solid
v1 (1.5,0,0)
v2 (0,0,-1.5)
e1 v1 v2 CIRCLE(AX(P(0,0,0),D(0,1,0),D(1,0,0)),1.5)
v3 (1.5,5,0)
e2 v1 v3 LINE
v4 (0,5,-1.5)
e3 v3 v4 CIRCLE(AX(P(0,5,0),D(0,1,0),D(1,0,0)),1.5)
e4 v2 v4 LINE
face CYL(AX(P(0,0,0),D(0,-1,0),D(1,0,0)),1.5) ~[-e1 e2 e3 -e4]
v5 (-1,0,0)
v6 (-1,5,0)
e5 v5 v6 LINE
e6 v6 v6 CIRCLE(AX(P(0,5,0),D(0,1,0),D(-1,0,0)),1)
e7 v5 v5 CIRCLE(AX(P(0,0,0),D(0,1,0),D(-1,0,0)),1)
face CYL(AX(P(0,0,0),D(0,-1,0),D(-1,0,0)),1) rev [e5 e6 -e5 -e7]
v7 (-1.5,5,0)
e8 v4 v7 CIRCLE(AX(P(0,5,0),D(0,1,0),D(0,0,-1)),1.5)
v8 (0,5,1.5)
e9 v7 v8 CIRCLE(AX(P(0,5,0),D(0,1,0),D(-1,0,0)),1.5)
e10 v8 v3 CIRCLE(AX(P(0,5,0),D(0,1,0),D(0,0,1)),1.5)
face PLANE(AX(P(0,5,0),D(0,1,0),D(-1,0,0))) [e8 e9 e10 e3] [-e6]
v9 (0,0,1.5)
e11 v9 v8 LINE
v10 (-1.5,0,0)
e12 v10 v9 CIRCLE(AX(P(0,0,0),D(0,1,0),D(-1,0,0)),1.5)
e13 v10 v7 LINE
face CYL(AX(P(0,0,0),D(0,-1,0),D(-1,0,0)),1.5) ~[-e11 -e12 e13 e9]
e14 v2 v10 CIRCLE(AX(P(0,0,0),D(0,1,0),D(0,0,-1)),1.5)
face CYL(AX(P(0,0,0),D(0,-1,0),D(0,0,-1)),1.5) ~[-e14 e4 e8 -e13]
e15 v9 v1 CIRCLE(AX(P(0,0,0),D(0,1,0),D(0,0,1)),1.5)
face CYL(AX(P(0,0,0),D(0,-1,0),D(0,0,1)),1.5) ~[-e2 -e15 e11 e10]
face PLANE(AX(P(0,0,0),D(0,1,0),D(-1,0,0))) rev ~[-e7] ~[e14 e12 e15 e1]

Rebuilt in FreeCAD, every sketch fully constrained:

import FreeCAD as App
import Part
import Sketcher
Q = App.Units.Quantity

doc = App.newDocument("Part")
body = doc.addObject("PartDesign::Body", "Body")

# Sketch on XZ plane
sketch1 = body.newObject("Sketcher::SketchObject", "Sketch")
sketch1.AttachmentSupport = (doc.getObject("XZ_Plane"), [""])
sketch1.MapMode = "FlatFace"
sketch1.addGeometry([
    Part.Circle(App.Vector(0, 0, 0), App.Vector(0, 0, 1), 1.5),
    Part.Circle(App.Vector(0, 0, 0), App.Vector(0, 0, 1), 1),
], False)
sketch1.addConstraint([
    Sketcher.Constraint("Coincident", 0, 3, -1, 1),
    Sketcher.Constraint("Coincident", 1, 3, -1, 1),
    Sketcher.Constraint("Diameter", 0, Q("3 mm")),
    Sketcher.Constraint("Diameter", 1, Q("2 mm")),
])
pad1 = body.newObject("PartDesign::Pad", "Pad")
pad1.Profile = sketch1
pad1.Length = 5
pad1.Reversed = True

doc.recompute()
